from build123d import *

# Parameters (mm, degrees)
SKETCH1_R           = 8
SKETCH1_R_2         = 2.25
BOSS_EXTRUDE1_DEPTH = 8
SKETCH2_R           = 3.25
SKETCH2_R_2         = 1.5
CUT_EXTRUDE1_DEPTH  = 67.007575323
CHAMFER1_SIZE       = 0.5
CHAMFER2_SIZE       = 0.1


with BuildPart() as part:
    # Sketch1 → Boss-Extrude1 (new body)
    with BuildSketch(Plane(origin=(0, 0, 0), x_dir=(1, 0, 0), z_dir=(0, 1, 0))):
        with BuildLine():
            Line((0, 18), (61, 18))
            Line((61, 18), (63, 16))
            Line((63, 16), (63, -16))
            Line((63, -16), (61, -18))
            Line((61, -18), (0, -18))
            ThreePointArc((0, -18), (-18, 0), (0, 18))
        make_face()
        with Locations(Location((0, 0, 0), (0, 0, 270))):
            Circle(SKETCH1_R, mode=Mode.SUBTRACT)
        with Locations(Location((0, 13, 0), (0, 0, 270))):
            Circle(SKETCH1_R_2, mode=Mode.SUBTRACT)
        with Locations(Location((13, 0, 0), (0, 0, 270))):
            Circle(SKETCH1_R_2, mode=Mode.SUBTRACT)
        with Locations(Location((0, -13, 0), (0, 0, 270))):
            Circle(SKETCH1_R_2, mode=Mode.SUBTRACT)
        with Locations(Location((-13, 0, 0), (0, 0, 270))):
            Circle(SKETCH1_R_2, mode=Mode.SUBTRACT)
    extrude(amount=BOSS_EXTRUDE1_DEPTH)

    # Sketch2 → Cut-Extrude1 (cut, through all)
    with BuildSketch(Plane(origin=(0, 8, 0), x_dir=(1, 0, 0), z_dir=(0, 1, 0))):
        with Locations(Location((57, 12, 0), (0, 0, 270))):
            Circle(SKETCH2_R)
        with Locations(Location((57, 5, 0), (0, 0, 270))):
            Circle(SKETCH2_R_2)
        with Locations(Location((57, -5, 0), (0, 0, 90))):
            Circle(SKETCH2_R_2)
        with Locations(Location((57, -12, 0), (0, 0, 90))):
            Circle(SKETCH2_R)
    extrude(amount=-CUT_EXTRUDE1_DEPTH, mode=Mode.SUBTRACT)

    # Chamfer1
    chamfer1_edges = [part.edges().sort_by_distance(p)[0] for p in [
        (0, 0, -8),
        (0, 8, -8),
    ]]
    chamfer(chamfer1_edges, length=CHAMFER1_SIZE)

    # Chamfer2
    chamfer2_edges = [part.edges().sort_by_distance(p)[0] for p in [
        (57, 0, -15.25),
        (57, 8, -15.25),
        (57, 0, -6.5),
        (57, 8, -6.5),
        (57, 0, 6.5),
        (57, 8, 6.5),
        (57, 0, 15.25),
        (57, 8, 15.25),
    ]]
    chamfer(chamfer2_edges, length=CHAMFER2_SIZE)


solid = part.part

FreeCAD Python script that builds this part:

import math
import FreeCAD as App
import Part
import Sketcher

V = App.Vector


def edges_at(feature, points):
    """Names of the edges that pass closest to the given points."""
    edges = feature.Shape.Edges
    near = lambda p: min(range(len(edges)), key=lambda i: edges[i].distToShape(Part.Vertex(*p))[0])
    return sorted({f"Edge{near(p) + 1}" for p in points})

doc = App.newDocument("Part")
body = doc.addObject("PartDesign::Body", "Body")

# Sketch on XZ plane
sketch1 = doc.addObject("Sketcher::SketchObject", "Sketch")
body.addObject(sketch1)
sketch1.AttachmentSupport = (doc.XZ_Plane, [""])
sketch1.MapMode = "FlatFace"
sketch1.addGeometry(Part.LineSegment(V(61, -18, 0), V(0, -18, 0)), False)
sketch1.addGeometry(Part.ArcOfCircle(Part.Circle(V(0, 0, 0), V(0, 0, 1), 18), math.radians(90), math.radians(270)), False)
sketch1.addGeometry(Part.LineSegment(V(0, 18, 0), V(61, 18, 0)), False)
sketch1.addGeometry(Part.LineSegment(V(61, 18, 0), V(63, 16, 0)), False)
sketch1.addGeometry(Part.LineSegment(V(63, 16, 0), V(63, -16, 0)), False)
sketch1.addGeometry(Part.LineSegment(V(63, -16, 0), V(61, -18, 0)), False)
sketch1.addGeometry(Part.Circle(V(0, 13, 0), V(0, 0, 1), 2.2), False)
sketch1.addGeometry(Part.Circle(V(13, 0, 0), V(0, 0, 1), 2.2), False)
sketch1.addGeometry(Part.Circle(V(0, -13, 0), V(0, 0, 1), 2.2), False)
sketch1.addGeometry(Part.Circle(V(0, 0, 0), V(0, 0, 1), 8), False)
sketch1.addGeometry(Part.Circle(V(-13, 0, 0), V(0, 0, 1), 2.2), False)
sketch1.addConstraint(Sketcher.Constraint("Tangent", 0, 2, 1, 2))
sketch1.addConstraint(Sketcher.Constraint("Tangent", 1, 1, 2, 1))
sketch1.addConstraint(Sketcher.Constraint("Coincident", 2, 2, 3, 1))
sketch1.addConstraint(Sketcher.Constraint("Coincident", 3, 2, 4, 1))
sketch1.addConstraint(Sketcher.Constraint("Coincident", 4, 2, 5, 1))
sketch1.addConstraint(Sketcher.Constraint("Coincident", 5, 2, 0, 1))
sketch1.addConstraint(Sketcher.Constraint("Horizontal", 0))
sketch1.addConstraint(Sketcher.Constraint("Horizontal", 2))
sketch1.addConstraint(Sketcher.Constraint("Vertical", 4))
sketch1.addConstraint(Sketcher.Constraint("Coincident", 1, 3, -1, 1))
sketch1.addConstraint(Sketcher.Constraint("Coincident", 9, 3, -1, 1))
sketch1.addConstraint(Sketcher.Constraint("Equal", 6, 7))
sketch1.addConstraint(Sketcher.Constraint("Equal", 7, 8))
sketch1.addConstraint(Sketcher.Constraint("Equal", 8, 10))
sketch1.addConstraint(Sketcher.Constraint("Symmetric", 6, 3, 8, 3, -1, 1))
sketch1.addConstraint(Sketcher.Constraint("Symmetric", 7, 3, 10, 3, -1, 1))
sketch1.addConstraint(Sketcher.Constraint("PointOnObject", 6, 3, -2))
sketch1.addConstraint(Sketcher.Constraint("PointOnObject", 7, 3, -1))
sketch1.addConstraint(Sketcher.Constraint("Perpendicular", 3, 5))
sketch1.addConstraint(Sketcher.Constraint("Vertical", 2, 2, 5, 2))
sketch1.addConstraint(Sketcher.Constraint("Equal", 3, 5))
sketch1.addConstraint(Sketcher.Constraint("Diameter", 9, 16.0))
sketch1.addConstraint(Sketcher.Constraint("Radius", 1, 18.0))
sketch1.addConstraint(Sketcher.Constraint("Diameter", 6, 4.5))
sketch1.addConstraint(Sketcher.Constraint("DistanceX", 0, 2, 0, 1, 61.0))
sketch1.addConstraint(Sketcher.Constraint("DistanceY", 4, 2, 4, 1, 32.0))
sketch1.addConstraint(Sketcher.Constraint("DistanceY", -1, 1, 6, 3, 13.0))
sketch1.addConstraint(Sketcher.Constraint("DistanceX", -1, 1, 7, 3, 13.0))
pad1 = doc.addObject("PartDesign::Pad", "Pad")
body.addObject(pad1)
pad1.Profile = sketch1
pad1.Length = 8
pad1.Reversed = True

# Sketch on XZ plane
sketch2 = doc.addObject("Sketcher::SketchObject", "Sketch001")
body.addObject(sketch2)
sketch2.AttachmentSupport = (doc.XZ_Plane, [""])
sketch2.MapMode = "FlatFace"
sketch2.AttachmentOffset = App.Placement(V(0, 0, -8), App.Rotation())
sketch2.addGeometry(Part.Circle(V(57, -12, 0), V(0, 0, 1), 3.2), False)
sketch2.addGeometry(Part.Circle(V(57, -5, 0), V(0, 0, 1), 1.5), False)
sketch2.addGeometry(Part.Circle(V(57, 5, 0), V(0, 0, 1), 1.5), False)
sketch2.addGeometry(Part.Circle(V(57, 12, 0), V(0, 0, 1), 3.2), False)
sketch2.addConstraint(Sketcher.Constraint("Equal", 1, 2))
sketch2.addConstraint(Sketcher.Constraint("Equal", 0, 3))
sketch2.addConstraint(Sketcher.Constraint("Symmetric", 1, 3, 2, 3, -1))
sketch2.addConstraint(Sketcher.Constraint("Symmetric", 0, 3, 3, 3, -1))
sketch2.addConstraint(Sketcher.Constraint("Vertical", 0, 3, 1, 3))
sketch2.addConstraint(Sketcher.Constraint("Diameter", 1, 3.0))
sketch2.addConstraint(Sketcher.Constraint("Diameter", 0, 6.5))
sketch2.addConstraint(Sketcher.Constraint("DistanceX", -1, 1, 0, 3, 57.0))
sketch2.addConstraint(Sketcher.Constraint("DistanceY", 0, 3, -1, 1, 12.0))
sketch2.addConstraint(Sketcher.Constraint("DistanceY", 1, 3, -1, 1, 5.0))
pocket1 = doc.addObject("PartDesign::Pocket", "Pocket")
body.addObject(pocket1)
pocket1.Profile = sketch2
pocket1.Type = "ThroughAll"
pocket1.Reversed = True
doc.recompute()

chamfer = doc.addObject("PartDesign::Chamfer", "Chamfer")
body.addObject(chamfer)
chamfer.Base = (pocket1, edges_at(pocket1, [(0, 0, -8), (0, 8, -8)]))
chamfer.Size = 0.5
doc.recompute()

chamfer2 = doc.addObject("PartDesign::Chamfer", "Chamfer001")
body.addObject(chamfer2)
chamfer2.Base = (chamfer, edges_at(chamfer, [
    (57, 0, -15.25),
    (57, 8, -15.25),
    (57, 0, -6.5),
    (57, 8, -6.5),
    (57, 0, 6.5),
    (57, 8, 6.5),
    (57, 0, 15.25),
    (57, 8, 15.25),
]))
chamfer2.Size = 0.1

doc.recompute()
